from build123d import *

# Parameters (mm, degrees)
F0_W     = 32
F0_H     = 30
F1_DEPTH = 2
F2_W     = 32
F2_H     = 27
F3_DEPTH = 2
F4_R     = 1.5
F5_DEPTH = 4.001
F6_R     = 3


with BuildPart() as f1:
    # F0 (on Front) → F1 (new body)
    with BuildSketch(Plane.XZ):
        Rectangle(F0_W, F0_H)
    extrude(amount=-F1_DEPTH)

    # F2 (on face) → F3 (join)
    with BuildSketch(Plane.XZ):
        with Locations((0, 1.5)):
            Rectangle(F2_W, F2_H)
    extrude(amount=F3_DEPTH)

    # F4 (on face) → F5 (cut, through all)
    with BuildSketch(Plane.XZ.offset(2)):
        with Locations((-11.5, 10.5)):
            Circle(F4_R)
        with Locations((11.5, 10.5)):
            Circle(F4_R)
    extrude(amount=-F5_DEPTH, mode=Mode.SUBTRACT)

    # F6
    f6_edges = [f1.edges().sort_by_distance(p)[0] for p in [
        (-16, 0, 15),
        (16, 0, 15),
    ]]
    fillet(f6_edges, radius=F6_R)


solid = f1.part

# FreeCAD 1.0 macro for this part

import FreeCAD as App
import Part
import Sketcher

V = App.Vector
Q = App.Units.Quantity


def edges_at(feature, points):
    """Names of the edges that pass closest to the given points."""
    edges = feature.Shape.Edges
    near = lambda p: min(range(len(edges)), key=lambda i: edges[i].distToShape(Part.Vertex(*p))[0])
    return sorted({f"Edge{near(p) + 1}" for p in points})


def add_polygon(sketch, points):
    """Adds a closed chain of lines whose ends are joined by coincident constraints."""
    first, n = sketch.GeometryCount, len(points)
    for a, b in zip(points, points[1:] + points[:1]):
        sketch.addGeometry(Part.LineSegment(App.Vector(*a, 0), App.Vector(*b, 0)), False)
    for i in range(n):
        sketch.addConstraint(Sketcher.Constraint("Coincident", first + i, 2, first + (i + 1) % n, 1))

doc = App.newDocument("Part")
params = doc.addObject("Spreadsheet::Sheet", "Params")
for row, (alias, value) in enumerate([
    ("sketch1_width", "32 mm"),
    ("sketch1_height", "30 mm"),
    ("pad1_length", "2 mm"),
    ("sketch2_width", "32 mm"),
    ("sketch2_height", "27 mm"),
    ("pad2_length", "2 mm"),
    ("sketch3_diameter", "3 mm"),
    ("fillet_radius", "3 mm"),
], start=1):
    params.set(f"A{row}", alias)
    params.set(f"B{row}", "=" + value)
    params.setAlias(f"B{row}", alias)

body = doc.addObject("PartDesign::Body", "Body")

sketch1 = body.newObject("Sketcher::SketchObject", "Sketch")
sketch1.AttachmentSupport = (doc.getObject("XZ_Plane"), [""])
sketch1.MapMode = "FlatFace"
add_polygon(sketch1, [(-16, 15), (-16, -15), (16, -15), (16, 15)])
sketch1.addConstraint(Sketcher.Constraint("Vertical", 0))
sketch1.addConstraint(Sketcher.Constraint("Horizontal", 1))
sketch1.addConstraint(Sketcher.Constraint("Vertical", 2))
sketch1.addConstraint(Sketcher.Constraint("Horizontal", 3))
sketch1.addConstraint(Sketcher.Constraint("Symmetric", 0, 2, 2, 2, -1, 1))
sketch1.addConstraint(Sketcher.Constraint("DistanceX", 1, 1, 1, 2, Q("32 mm")))
sketch1.addConstraint(Sketcher.Constraint("DistanceY", 0, 2, 0, 1, Q("30 mm")))
sketch1.setExpression("Constraints[9]", "Params.sketch1_width")
sketch1.setExpression("Constraints[10]", "Params.sketch1_height")
pad1 = body.newObject("PartDesign::Pad", "Pad")
pad1.Profile = sketch1
pad1.setExpression("Length", "Params.pad1_length")
pad1.Reversed = True

sketch2 = body.newObject("Sketcher::SketchObject", "Sketch001")
sketch2.AttachmentSupport = (doc.getObject("XZ_Plane"), [""])
sketch2.MapMode = "FlatFace"
add_polygon(sketch2, [(-16, 15), (-16, -12), (16, -12), (16, 15)])
sketch2.addConstraint(Sketcher.Constraint("Vertical", 0))
sketch2.addConstraint(Sketcher.Constraint("Horizontal", 1))
sketch2.addConstraint(Sketcher.Constraint("Vertical", 2))
sketch2.addConstraint(Sketcher.Constraint("Horizontal", 3))
sketch2.addConstraint(Sketcher.Constraint("DistanceX", 1, 1, 1, 2, Q("32 mm")))
sketch2.addConstraint(Sketcher.Constraint("DistanceY", 0, 2, 0, 1, Q("27 mm")))
sketch2.addConstraint(Sketcher.Constraint("DistanceX", 0, 2, -1, 1, Q("16 mm")))
sketch2.addConstraint(Sketcher.Constraint("DistanceY", 0, 2, -1, 1, Q("12 mm")))
sketch2.setExpression("Constraints[8]", "Params.sketch2_width")
sketch2.setExpression("Constraints[9]", "Params.sketch2_height")
pad2 = body.newObject("PartDesign::Pad", "Pad001")
pad2.Profile = sketch2
pad2.setExpression("Length", "Params.pad2_length")

sketch3 = body.newObject("Sketcher::SketchObject", "Sketch002")
sketch3.AttachmentSupport = (doc.getObject("XZ_Plane"), [""])
sketch3.MapMode = "FlatFace"
sketch3.AttachmentOffset = App.Placement(V(0, 0, 2), App.Rotation())
sketch3.addGeometry(Part.Circle(V(-11.5, 10.5, 0), V(0, 0, 1), 1.5), False)
sketch3.addGeometry(Part.Circle(V(11.5, 10.5, 0), V(0, 0, 1), 1.5), False)
sketch3.addConstraint(Sketcher.Constraint("Equal", 0, 1))
sketch3.addConstraint(Sketcher.Constraint("Symmetric", 0, 3, 1, 3, -2))
sketch3.addConstraint(Sketcher.Constraint("Diameter", 0, Q("3 mm")))
sketch3.addConstraint(Sketcher.Constraint("DistanceX", 0, 3, 1, 3, Q("23 mm")))
sketch3.addConstraint(Sketcher.Constraint("DistanceY", -1, 1, 0, 3, Q("10.5 mm")))
sketch3.setExpression("Constraints[2]", "Params.sketch3_diameter")
pocket1 = body.newObject("PartDesign::Pocket", "Pocket")
pocket1.Profile = sketch3
pocket1.Type = "ThroughAll"
doc.recompute()

fillet = body.newObject("PartDesign::Fillet", "Fillet")
fillet.Base = (pocket1, edges_at(pocket1, [(-16, 0, 15), (16, 0, 15)]))
fillet.setExpression("Radius", "Params.fillet_radius")

doc.recompute()
